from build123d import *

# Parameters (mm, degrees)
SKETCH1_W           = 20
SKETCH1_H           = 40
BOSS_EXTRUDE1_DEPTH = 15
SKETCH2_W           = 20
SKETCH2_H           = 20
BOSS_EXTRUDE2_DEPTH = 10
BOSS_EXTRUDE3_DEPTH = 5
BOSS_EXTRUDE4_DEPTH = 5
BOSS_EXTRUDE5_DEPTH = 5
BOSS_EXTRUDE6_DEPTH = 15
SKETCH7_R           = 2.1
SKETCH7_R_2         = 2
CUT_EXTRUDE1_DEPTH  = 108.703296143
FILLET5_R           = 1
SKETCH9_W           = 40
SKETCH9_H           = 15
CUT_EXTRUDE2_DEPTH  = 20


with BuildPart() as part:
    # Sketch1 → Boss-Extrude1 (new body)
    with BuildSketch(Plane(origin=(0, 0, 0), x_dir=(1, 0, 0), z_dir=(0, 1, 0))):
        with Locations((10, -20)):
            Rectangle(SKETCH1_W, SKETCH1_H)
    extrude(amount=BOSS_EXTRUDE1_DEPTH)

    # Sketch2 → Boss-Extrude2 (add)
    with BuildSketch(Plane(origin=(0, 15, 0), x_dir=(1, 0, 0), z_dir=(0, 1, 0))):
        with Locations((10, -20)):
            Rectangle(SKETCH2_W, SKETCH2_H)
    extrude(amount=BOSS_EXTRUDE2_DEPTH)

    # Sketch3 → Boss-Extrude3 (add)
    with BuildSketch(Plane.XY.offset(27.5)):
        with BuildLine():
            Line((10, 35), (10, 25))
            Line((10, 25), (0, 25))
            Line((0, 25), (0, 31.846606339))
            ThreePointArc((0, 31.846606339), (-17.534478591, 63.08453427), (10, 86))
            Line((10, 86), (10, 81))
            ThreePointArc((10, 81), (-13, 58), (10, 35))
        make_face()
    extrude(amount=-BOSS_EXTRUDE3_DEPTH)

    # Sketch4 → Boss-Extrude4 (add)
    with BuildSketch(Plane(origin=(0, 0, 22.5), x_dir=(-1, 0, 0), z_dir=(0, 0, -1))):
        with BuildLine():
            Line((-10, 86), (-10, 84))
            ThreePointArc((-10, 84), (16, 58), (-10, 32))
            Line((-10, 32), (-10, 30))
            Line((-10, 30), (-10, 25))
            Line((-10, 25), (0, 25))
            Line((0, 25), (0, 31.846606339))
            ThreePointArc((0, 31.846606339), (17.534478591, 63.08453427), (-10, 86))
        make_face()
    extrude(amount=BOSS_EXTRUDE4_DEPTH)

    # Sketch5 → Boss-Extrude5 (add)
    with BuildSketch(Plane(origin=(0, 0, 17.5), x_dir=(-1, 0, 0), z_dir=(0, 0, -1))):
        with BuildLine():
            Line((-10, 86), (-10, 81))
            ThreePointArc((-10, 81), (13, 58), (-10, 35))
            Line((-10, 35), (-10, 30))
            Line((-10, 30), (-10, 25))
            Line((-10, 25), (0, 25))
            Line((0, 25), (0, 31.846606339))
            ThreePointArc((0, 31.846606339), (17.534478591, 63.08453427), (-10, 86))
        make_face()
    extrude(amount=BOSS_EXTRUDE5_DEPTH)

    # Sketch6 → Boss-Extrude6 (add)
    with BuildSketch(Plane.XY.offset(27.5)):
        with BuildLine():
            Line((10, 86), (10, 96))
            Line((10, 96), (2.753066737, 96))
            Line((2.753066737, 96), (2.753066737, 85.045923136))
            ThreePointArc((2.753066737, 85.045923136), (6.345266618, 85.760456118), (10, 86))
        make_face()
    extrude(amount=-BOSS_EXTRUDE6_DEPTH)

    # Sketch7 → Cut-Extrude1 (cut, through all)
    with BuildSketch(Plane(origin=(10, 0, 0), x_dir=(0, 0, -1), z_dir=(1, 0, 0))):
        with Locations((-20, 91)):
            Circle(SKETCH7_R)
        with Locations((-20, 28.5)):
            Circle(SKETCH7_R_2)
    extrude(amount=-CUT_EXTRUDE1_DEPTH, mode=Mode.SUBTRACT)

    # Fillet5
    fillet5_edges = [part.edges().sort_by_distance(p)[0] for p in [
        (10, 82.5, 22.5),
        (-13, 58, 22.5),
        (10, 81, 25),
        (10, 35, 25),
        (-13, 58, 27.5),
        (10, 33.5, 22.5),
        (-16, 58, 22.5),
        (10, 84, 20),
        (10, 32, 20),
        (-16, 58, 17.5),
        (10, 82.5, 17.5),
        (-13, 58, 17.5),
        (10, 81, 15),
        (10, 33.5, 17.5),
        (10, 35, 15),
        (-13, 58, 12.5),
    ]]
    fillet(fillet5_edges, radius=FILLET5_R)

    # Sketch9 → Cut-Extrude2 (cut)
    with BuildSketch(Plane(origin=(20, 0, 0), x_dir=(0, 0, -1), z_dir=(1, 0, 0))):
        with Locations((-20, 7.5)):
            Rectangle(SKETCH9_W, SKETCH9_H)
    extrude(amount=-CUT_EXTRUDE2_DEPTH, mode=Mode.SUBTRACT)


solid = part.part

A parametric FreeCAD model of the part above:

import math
import FreeCAD as App
import Part
import Sketcher
from FreeCAD import Vector


def edges_at(feature, points):
    """Names of the edges that pass closest to the given points."""
    edges = feature.Shape.Edges
    near = lambda p: min(range(len(edges)), key=lambda i: edges[i].distToShape(Part.Vertex(*p))[0])
    return sorted({f"Edge{near(p) + 1}" for p in points})


def add_polygon(sketch, points):
    """Adds a closed chain of lines whose ends are joined by coincident constraints."""
    first, n = sketch.GeometryCount, len(points)
    for a, b in zip(points, points[1:] + points[:1]):
        sketch.addGeometry(Part.LineSegment(App.Vector(*a, 0), App.Vector(*b, 0)), False)
    for i in range(n):
        sketch.addConstraint(Sketcher.Constraint("Coincident", first + i, 2, first + (i + 1) % n, 1))

doc = App.newDocument("Part")
body = doc.addObject("PartDesign::Body", "Body")

sketch1 = body.newObject("Sketcher::SketchObject", "Sketch")
sketch1.AttachmentSupport = (doc.getObject("XZ_Plane"), [""])
sketch1.MapMode = "FlatFace"
add_polygon(sketch1, [(0, 0), (0, 40), (20, 40), (20, 0)])
sketch1.addConstraint([
    Sketcher.Constraint("Vertical", 0),
    Sketcher.Constraint("Horizontal", 1),
    Sketcher.Constraint("Vertical", 2),
    Sketcher.Constraint("Horizontal", 3),
    Sketcher.Constraint("Coincident", 3, 2, -1, 1),
    Sketcher.Constraint("DistanceX", 1, 1, 1, 2, 20.0),
    Sketcher.Constraint("DistanceY", 0, 1, 0, 2, 40.0),
])
pad1 = body.newObject("PartDesign::Pad", "Pad")
pad1.Profile = sketch1
pad1.Length = 15
pad1.Reversed = True

sketch2 = body.newObject("Sketcher::SketchObject", "Sketch001")
sketch2.AttachmentSupport = (doc.getObject("XZ_Plane"), [""])
sketch2.MapMode = "FlatFace"
sketch2.AttachmentOffset = App.Placement(Vector(0, 0, -15), App.Rotation())
add_polygon(sketch2, [(0, 10), (0, 30), (20, 30), (20, 10)])
sketch2.addConstraint([
    Sketcher.Constraint("Vertical", 0),
    Sketcher.Constraint("Horizontal", 1),
    Sketcher.Constraint("Vertical", 2),
    Sketcher.Constraint("Horizontal", 3),
    Sketcher.Constraint("PointOnObject", 0, 2, -2),
    Sketcher.Constraint("Equal", 3, 0),
    Sketcher.Constraint("DistanceX", 1, 1, 1, 2, 20.0),
    Sketcher.Constraint("DistanceY", -1, 1, 0, 2, 30.0),
])
pad2 = body.newObject("PartDesign::Pad", "Pad001")
pad2.Profile = sketch2
pad2.Length = 10
pad2.Reversed = True

sketch3 = body.newObject("Sketcher::SketchObject", "Sketch002")
sketch3.AttachmentSupport = (doc.getObject("XY_Plane"), [""])
sketch3.MapMode = "FlatFace"
sketch3.AttachmentOffset = App.Placement(Vector(0, 0, 27.5), App.Rotation())
sketch3.addGeometry([
    Part.LineSegment(Vector(10, 25, 0), Vector(10, 35, 0)),
    Part.ArcOfCircle(Part.Circle(Vector(10, 58, 0), Vector(0, 0, 1), 23), math.radians(90), math.radians(270)),
    Part.LineSegment(Vector(10, 81, 0), Vector(10, 86, 0)),
    Part.ArcOfCircle(Part.Circle(Vector(10, 58, 0), Vector(0, 0, 1), 28), math.radians(90), math.radians(249.075168)),
    Part.LineSegment(Vector(0, 31.846606, 0), Vector(0, 25, 0)),
    Part.LineSegment(Vector(0, 25, 0), Vector(10, 25, 0)),
], False)
sketch3.addConstraint([
    Sketcher.Constraint("Coincident", 0, 2, 1, 2),
    Sketcher.Constraint("Coincident", 1, 1, 2, 1),
    Sketcher.Constraint("Coincident", 2, 2, 3, 1),
    Sketcher.Constraint("Coincident", 3, 2, 4, 1),
    Sketcher.Constraint("Coincident", 4, 2, 5, 1),
    Sketcher.Constraint("Coincident", 5, 2, 0, 1),
    Sketcher.Constraint("Vertical", 0),
    Sketcher.Constraint("Vertical", 2),
    Sketcher.Constraint("Vertical", 4),
    Sketcher.Constraint("Horizontal", 5),
    Sketcher.Constraint("Coincident", 3, 3, 1, 3),
    Sketcher.Constraint("PointOnObject", 3, 2, -2),
    Sketcher.Constraint("Vertical", 3, 3, 0, 2),
    Sketcher.Constraint("Vertical", 0, 2, 1, 1),
    Sketcher.Constraint("Equal", 5, 0),
    Sketcher.Constraint("Radius", 1, 23.0),
    Sketcher.Constraint("Radius", 3, 28.0),
    Sketcher.Constraint("DistanceX", 5, 1, 5, 2, 10.0),
    Sketcher.Constraint("DistanceY", -1, 1, 1, 3, 58.0),
])
pad3 = body.newObject("PartDesign::Pad", "Pad002")
pad3.Profile = sketch3
pad3.Length = 5
pad3.Reversed = True

sketch4 = body.newObject("Sketcher::SketchObject", "Sketch003")
sketch4.AttachmentSupport = (doc.getObject("XY_Plane"), [""])
sketch4.MapMode = "FlatFace"
sketch4.AttachmentOffset = App.Placement(Vector(0, 0, 22.5), App.Rotation())
sketch4.addGeometry([
    Part.LineSegment(Vector(10, 86, 0), Vector(10, 84, 0)),
    Part.ArcOfCircle(Part.Circle(Vector(10, 58, 0), Vector(0, 0, 1), 26), math.radians(90), math.radians(270)),
    Part.LineSegment(Vector(10, 32, 0), Vector(10, 25, 0)),
    Part.LineSegment(Vector(10, 25, 0), Vector(0, 25, 0)),
    Part.LineSegment(Vector(0, 25, 0), Vector(0, 31.846606, 0)),
    Part.ArcOfCircle(Part.Circle(Vector(10, 58, 0), Vector(0, 0, 1), 28), math.radians(90), math.radians(249.075168)),
], False)
sketch4.addConstraint([
    Sketcher.Constraint("Coincident", 0, 2, 1, 1),
    Sketcher.Constraint("Coincident", 1, 2, 2, 1),
    Sketcher.Constraint("Coincident", 2, 2, 3, 1),
    Sketcher.Constraint("Coincident", 3, 2, 4, 1),
    Sketcher.Constraint("Coincident", 4, 2, 5, 2),
    Sketcher.Constraint("Coincident", 5, 1, 0, 1),
    Sketcher.Constraint("Vertical", 0),
    Sketcher.Constraint("Vertical", 2),
    Sketcher.Constraint("Horizontal", 3),
    Sketcher.Constraint("Vertical", 4),
    Sketcher.Constraint("Coincident", 5, 3, 1, 3),
    Sketcher.Constraint("PointOnObject", 3, 2, -2),
    Sketcher.Constraint("Vertical", 5, 3, 0, 2),
    Sketcher.Constraint("Vertical", 0, 2, 1, 2),
    Sketcher.Constraint("Radius", 1, 26.0),
    Sketcher.Constraint("Radius", 5, 28.0),
    Sketcher.Constraint("DistanceX", 3, 2, 3, 1, 10.0),
    Sketcher.Constraint("DistanceY", 2, 2, 2, 1, 7.0),
    Sketcher.Constraint("DistanceY", -1, 1, 1, 3, 58.0),
])
pad4 = body.newObject("PartDesign::Pad", "Pad003")
pad4.Profile = sketch4
pad4.Length = 5
pad4.Reversed = True

sketch5 = body.newObject("Sketcher::SketchObject", "Sketch004")
sketch5.AttachmentSupport = (doc.getObject("XY_Plane"), [""])
sketch5.MapMode = "FlatFace"
sketch5.AttachmentOffset = App.Placement(Vector(0, 0, 17.5), App.Rotation())
sketch5.addGeometry([
    Part.LineSegment(Vector(10, 86, 0), Vector(10, 81, 0)),
    Part.ArcOfCircle(Part.Circle(Vector(10, 58, 0), Vector(0, 0, 1), 23), math.radians(90), math.radians(270)),
    Part.LineSegment(Vector(10, 35, 0), Vector(10, 25, 0)),
    Part.LineSegment(Vector(10, 25, 0), Vector(0, 25, 0)),
    Part.LineSegment(Vector(0, 25, 0), Vector(0, 31.846606, 0)),
    Part.ArcOfCircle(Part.Circle(Vector(10, 58, 0), Vector(0, 0, 1), 28), math.radians(90), math.radians(249.075168)),
], False)
sketch5.addConstraint([
    Sketcher.Constraint("Coincident", 0, 2, 1, 1),
    Sketcher.Constraint("Coincident", 1, 2, 2, 1),
    Sketcher.Constraint("Coincident", 2, 2, 3, 1),
    Sketcher.Constraint("Coincident", 3, 2, 4, 1),
    Sketcher.Constraint("Coincident", 4, 2, 5, 2),
    Sketcher.Constraint("Coincident", 5, 1, 0, 1),
    Sketcher.Constraint("Vertical", 0),
    Sketcher.Constraint("Vertical", 2),
    Sketcher.Constraint("Horizontal", 3),
    Sketcher.Constraint("Vertical", 4),
    Sketcher.Constraint("Coincident", 5, 3, 1, 3),
    Sketcher.Constraint("PointOnObject", 3, 2, -2),
    Sketcher.Constraint("Vertical", 5, 3, 0, 2),
    Sketcher.Constraint("Vertical", 0, 2, 1, 2),
    Sketcher.Constraint("Equal", 3, 2),
    Sketcher.Constraint("Radius", 1, 23.0),
    Sketcher.Constraint("Radius", 5, 28.0),
    Sketcher.Constraint("DistanceX", 3, 2, 3, 1, 10.0),
    Sketcher.Constraint("DistanceY", -1, 1, 1, 3, 58.0),
])
pad5 = body.newObject("PartDesign::Pad", "Pad004")
pad5.Profile = sketch5
pad5.Length = 5
pad5.Reversed = True

sketch6 = body.newObject("Sketcher::SketchObject", "Sketch005")
sketch6.AttachmentSupport = (doc.getObject("XY_Plane"), [""])
sketch6.MapMode = "FlatFace"
sketch6.AttachmentOffset = App.Placement(Vector(0, 0, 27.5), App.Rotation())
sketch6.addGeometry([
    Part.LineSegment(Vector(10, 86, 0), Vector(10, 96, 0)),
    Part.LineSegment(Vector(10, 96, 0), Vector(2.753067, 96, 0)),
    Part.LineSegment(Vector(2.753067, 96, 0), Vector(2.753067, 85.045923, 0)),
    Part.ArcOfCircle(Part.Circle(Vector(10, 58, 0), Vector(0, 0, 1), 28), math.radians(90), math.radians(105)),
], False)
sketch6.addConstraint([
    Sketcher.Constraint("Coincident", 0, 2, 1, 1),
    Sketcher.Constraint("Coincident", 1, 2, 2, 1),
    Sketcher.Constraint("Coincident", 2, 2, 3, 2),
    Sketcher.Constraint("Coincident", 3, 1, 0, 1),
    Sketcher.Constraint("Vertical", 0),
    Sketcher.Constraint("Horizontal", 1),
    Sketcher.Constraint("Vertical", 2),
    Sketcher.Constraint("Vertical", 3, 3, 0, 2),
    Sketcher.Constraint("Radius", 3, 28.0),
    Sketcher.Constraint("DistanceY", 0, 1, 0, 2, 10.0),
    Sketcher.Constraint("DistanceX", -1, 1, 3, 3, 10.0),
    Sketcher.Constraint("DistanceY", -1, 1, 3, 3, 58.0),
    Sketcher.Constraint("DistanceX", 1, 2, 1, 1, 7.246933),
])
pad6 = body.newObject("PartDesign::Pad", "Pad005")
pad6.Profile = sketch6
pad6.Length = 15
pad6.Reversed = True

sketch7 = body.newObject("Sketcher::SketchObject", "Sketch006")
sketch7.AttachmentSupport = (doc.getObject("YZ_Plane"), [""])
sketch7.MapMode = "FlatFace"
sketch7.AttachmentOffset = App.Placement(Vector(0, 0, 10), App.Rotation())
sketch7.addGeometry([
    Part.Circle(Vector(91, 20, 0), Vector(0, 0, 1), 2.1),
    Part.Circle(Vector(28.5, 20, 0), Vector(0, 0, 1), 2),
], False)
sketch7.addConstraint([
    Sketcher.Constraint("Horizontal", 0, 3, 1, 3),
    Sketcher.Constraint("Diameter", 1, 4.0),
    Sketcher.Constraint("Diameter", 0, 4.2),
    Sketcher.Constraint("DistanceX", -1, 1, 0, 3, 91.0),
    Sketcher.Constraint("DistanceY", -1, 1, 0, 3, 20.0),
    Sketcher.Constraint("DistanceX", -1, 1, 1, 3, 28.5),
])
pocket1 = body.newObject("PartDesign::Pocket", "Pocket")
pocket1.Profile = sketch7
pocket1.Type = "ThroughAll"
doc.recompute()

fillet = body.newObject("PartDesign::Fillet", "Fillet")
fillet.Base = (pocket1, edges_at(pocket1, [
    (10, 82.5, 22.5),
    (-13, 58, 22.5),
    (10, 81, 25),
    (10, 35, 25),
    (-13, 58, 27.5),
    (10, 33.5, 22.5),
    (-16, 58, 22.5),
    (10, 84, 20),
    (10, 32, 20),
    (-16, 58, 17.5),
    (10, 82.5, 17.5),
    (-13, 58, 17.5),
    (10, 81, 15),
    (10, 33.5, 17.5),
    (10, 35, 15),
    (-13, 58, 12.5),
]))
fillet.Radius = 1

sketch8 = body.newObject("Sketcher::SketchObject", "Sketch007")
sketch8.AttachmentSupport = (doc.getObject("YZ_Plane"), [""])
sketch8.MapMode = "FlatFace"
sketch8.AttachmentOffset = App.Placement(Vector(0, 0, 20), App.Rotation())
add_polygon(sketch8, [(15, 40), (0, 40), (0, 0), (15, 0)])
sketch8.addConstraint([
    Sketcher.Constraint("Horizontal", 0),
    Sketcher.Constraint("Vertical", 1),
    Sketcher.Constraint("Horizontal", 2),
    Sketcher.Constraint("Vertical", 3),
    Sketcher.Constraint("Coincident", 1, 2, -1, 1),
    Sketcher.Constraint("DistanceX", 0, 2, 0, 1, 15.0),
    Sketcher.Constraint("DistanceY", 1, 2, 1, 1, 40.0),
])
pocket2 = body.newObject("PartDesign::Pocket", "Pocket001")
pocket2.Profile = sketch8
pocket2.Length = 20

doc.recompute()
